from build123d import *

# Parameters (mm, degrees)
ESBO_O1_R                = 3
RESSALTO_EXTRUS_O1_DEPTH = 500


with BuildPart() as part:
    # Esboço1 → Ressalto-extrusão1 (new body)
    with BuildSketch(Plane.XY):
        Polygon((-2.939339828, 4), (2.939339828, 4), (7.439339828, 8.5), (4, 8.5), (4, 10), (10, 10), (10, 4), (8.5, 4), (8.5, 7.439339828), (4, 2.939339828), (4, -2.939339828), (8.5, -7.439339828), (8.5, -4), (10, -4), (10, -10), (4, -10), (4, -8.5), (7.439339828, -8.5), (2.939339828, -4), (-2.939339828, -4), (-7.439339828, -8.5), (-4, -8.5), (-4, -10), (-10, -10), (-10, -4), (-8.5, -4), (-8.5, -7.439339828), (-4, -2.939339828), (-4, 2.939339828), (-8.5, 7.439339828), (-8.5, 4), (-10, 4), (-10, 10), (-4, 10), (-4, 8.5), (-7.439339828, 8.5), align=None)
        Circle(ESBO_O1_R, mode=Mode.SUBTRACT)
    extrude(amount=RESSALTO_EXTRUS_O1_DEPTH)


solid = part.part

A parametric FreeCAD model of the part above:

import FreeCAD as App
import Part
import Sketcher
from FreeCAD import Vector

doc = App.newDocument("Part")
params = doc.addObject("Spreadsheet::Sheet", "Params")
for row, (alias, value) in enumerate([
    ("sketch1_diameter", "6 mm"),
    ("sketch1_width", "6 mm"),
    ("sketch1_width2", "1.5 mm"),
    ("pad1_length", "500 mm"),
], start=1):
    params.set(f"A{row}", alias)
    params.set(f"B{row}", "=" + value)
    params.setAlias(f"B{row}", alias)

body = doc.addObject("PartDesign::Body", "Body")

# Sketch on XY plane
sketch1 = body.newObject("Sketcher::SketchObject", "Sketch")
sketch1.AttachmentSupport = (doc.getObject("XY_Plane"), [""])
sketch1.MapMode = "FlatFace"
sketch1.addGeometry(Part.LineSegment(Vector(2.9, 4, 0), Vector(-2.9, 4, 0)), False)
sketch1.addGeometry(Part.LineSegment(Vector(-2.9, 4, 0), Vector(-7.4, 8.5, 0)), False)
sketch1.addGeometry(Part.LineSegment(Vector(-7.4, 8.5, 0), Vector(-4, 8.5, 0)), False)
sketch1.addGeometry(Part.LineSegment(Vector(-4, 8.5, 0), Vector(-4, 10, 0)), False)
sketch1.addGeometry(Part.LineSegment(Vector(-4, 10, 0), Vector(-10, 10, 0)), False)
sketch1.addGeometry(Part.LineSegment(Vector(-10, 10, 0), Vector(-10, 4, 0)), False)
sketch1.addGeometry(Part.LineSegment(Vector(-10, 4, 0), Vector(-8.5, 4, 0)), False)
sketch1.addGeometry(Part.LineSegment(Vector(-8.5, 4, 0), Vector(-8.5, 7.4, 0)), False)
sketch1.addGeometry(Part.LineSegment(Vector(-8.5, 7.4, 0), Vector(-4, 2.9, 0)), False)
sketch1.addGeometry(Part.LineSegment(Vector(-4, 2.9, 0), Vector(-4, -2.9, 0)), False)
sketch1.addGeometry(Part.LineSegment(Vector(-4, -2.9, 0), Vector(-8.5, -7.4, 0)), False)
sketch1.addGeometry(Part.LineSegment(Vector(-8.5, -7.4, 0), Vector(-8.5, -4, 0)), False)
sketch1.addGeometry(Part.LineSegment(Vector(-8.5, -4, 0), Vector(-10, -4, 0)), False)
sketch1.addGeometry(Part.LineSegment(Vector(-10, -4, 0), Vector(-10, -10, 0)), False)
sketch1.addGeometry(Part.LineSegment(Vector(-10, -10, 0), Vector(-4, -10, 0)), False)
sketch1.addGeometry(Part.LineSegment(Vector(-4, -10, 0), Vector(-4, -8.5, 0)), False)
sketch1.addGeometry(Part.LineSegment(Vector(-4, -8.5, 0), Vector(-7.4, -8.5, 0)), False)
sketch1.addGeometry(Part.LineSegment(Vector(-7.4, -8.5, 0), Vector(-2.9, -4, 0)), False)
sketch1.addGeometry(Part.LineSegment(Vector(-2.9, -4, 0), Vector(2.9, -4, 0)), False)
sketch1.addGeometry(Part.LineSegment(Vector(2.9, -4, 0), Vector(7.4, -8.5, 0)), False)
sketch1.addGeometry(Part.LineSegment(Vector(7.4, -8.5, 0), Vector(4, -8.5, 0)), False)
sketch1.addGeometry(Part.LineSegment(Vector(4, -8.5, 0), Vector(4, -10, 0)), False)
sketch1.addGeometry(Part.LineSegment(Vector(4, -10, 0), Vector(10, -10, 0)), False)
sketch1.addGeometry(Part.LineSegment(Vector(10, -10, 0), Vector(10, -4, 0)), False)
sketch1.addGeometry(Part.LineSegment(Vector(10, -4, 0), Vector(8.5, -4, 0)), False)
sketch1.addGeometry(Part.LineSegment(Vector(8.5, -4, 0), Vector(8.5, -7.4, 0)), False)
sketch1.addGeometry(Part.LineSegment(Vector(8.5, -7.4, 0), Vector(4, -2.9, 0)), False)
sketch1.addGeometry(Part.LineSegment(Vector(4, -2.9, 0), Vector(4, 2.9, 0)), False)
sketch1.addGeometry(Part.LineSegment(Vector(4, 2.9, 0), Vector(8.5, 7.4, 0)), False)
sketch1.addGeometry(Part.LineSegment(Vector(8.5, 7.4, 0), Vector(8.5, 4, 0)), False)
sketch1.addGeometry(Part.LineSegment(Vector(8.5, 4, 0), Vector(10, 4, 0)), False)
sketch1.addGeometry(Part.LineSegment(Vector(10, 4, 0), Vector(10, 10, 0)), False)
sketch1.addGeometry(Part.LineSegment(Vector(10, 10, 0), Vector(4, 10, 0)), False)
sketch1.addGeometry(Part.LineSegment(Vector(4, 10, 0), Vector(4, 8.5, 0)), False)
sketch1.addGeometry(Part.LineSegment(Vector(4, 8.5, 0), Vector(7.4, 8.5, 0)), False)
sketch1.addGeometry(Part.LineSegment(Vector(7.4, 8.5, 0), Vector(2.9, 4, 0)), False)
sketch1.addGeometry(Part.Circle(Vector(0, 0, 0), Vector(0, 0, 1), 3), False)
sketch1.addConstraint(Sketcher.Constraint("Coincident", 0, 2, 1, 1))
sketch1.addConstraint(Sketcher.Constraint("Coincident", 1, 2, 2, 1))
sketch1.addConstraint(Sketcher.Constraint("Coincident", 2, 2, 3, 1))
sketch1.addConstraint(Sketcher.Constraint("Coincident", 3, 2, 4, 1))
sketch1.addConstraint(Sketcher.Constraint("Coincident", 4, 2, 5, 1))
sketch1.addConstraint(Sketcher.Constraint("Coincident", 5, 2, 6, 1))
sketch1.addConstraint(Sketcher.Constraint("Coincident", 6, 2, 7, 1))
sketch1.addConstraint(Sketcher.Constraint("Coincident", 7, 2, 8, 1))
sketch1.addConstraint(Sketcher.Constraint("Coincident", 8, 2, 9, 1))
sketch1.addConstraint(Sketcher.Constraint("Coincident", 9, 2, 10, 1))
sketch1.addConstraint(Sketcher.Constraint("Coincident", 10, 2, 11, 1))
sketch1.addConstraint(Sketcher.Constraint("Coincident", 11, 2, 12, 1))
sketch1.addConstraint(Sketcher.Constraint("Coincident", 12, 2, 13, 1))
sketch1.addConstraint(Sketcher.Constraint("Coincident", 13, 2, 14, 1))
sketch1.addConstraint(Sketcher.Constraint("Coincident", 14, 2, 15, 1))
sketch1.addConstraint(Sketcher.Constraint("Coincident", 15, 2, 16, 1))
sketch1.addConstraint(Sketcher.Constraint("Coincident", 16, 2, 17, 1))
sketch1.addConstraint(Sketcher.Constraint("Coincident", 17, 2, 18, 1))
sketch1.addConstraint(Sketcher.Constraint("Coincident", 18, 2, 19, 1))
sketch1.addConstraint(Sketcher.Constraint("Coincident", 19, 2, 20, 1))
sketch1.addConstraint(Sketcher.Constraint("Coincident", 20, 2, 21, 1))
sketch1.addConstraint(Sketcher.Constraint("Coincident", 21, 2, 22, 1))
sketch1.addConstraint(Sketcher.Constraint("Coincident", 22, 2, 23, 1))
sketch1.addConstraint(Sketcher.Constraint("Coincident", 23, 2, 24, 1))
sketch1.addConstraint(Sketcher.Constraint("Coincident", 24, 2, 25, 1))
sketch1.addConstraint(Sketcher.Constraint("Coincident", 25, 2, 26, 1))
sketch1.addConstraint(Sketcher.Constraint("Coincident", 26, 2, 27, 1))
sketch1.addConstraint(Sketcher.Constraint("Coincident", 27, 2, 28, 1))
sketch1.addConstraint(Sketcher.Constraint("Coincident", 28, 2, 29, 1))
sketch1.addConstraint(Sketcher.Constraint("Coincident", 29, 2, 30, 1))
sketch1.addConstraint(Sketcher.Constraint("Coincident", 30, 2, 31, 1))
sketch1.addConstraint(Sketcher.Constraint("Coincident", 31, 2, 32, 1))
sketch1.addConstraint(Sketcher.Constraint("Coincident", 32, 2, 33, 1))
sketch1.addConstraint(Sketcher.Constraint("Coincident", 33, 2, 34, 1))
sketch1.addConstraint(Sketcher.Constraint("Coincident", 34, 2, 35, 1))
sketch1.addConstraint(Sketcher.Constraint("Coincident", 35, 2, 0, 1))
sketch1.addConstraint(Sketcher.Constraint("Horizontal", 0))
sketch1.addConstraint(Sketcher.Constraint("Horizontal", 2))
sketch1.addConstraint(Sketcher.Constraint("Vertical", 3))
sketch1.addConstraint(Sketcher.Constraint("Horizontal", 4))
sketch1.addConstraint(Sketcher.Constraint("Vertical", 5))
sketch1.addConstraint(Sketcher.Constraint("Horizontal", 6))
sketch1.addConstraint(Sketcher.Constraint("Vertical", 7))
sketch1.addConstraint(Sketcher.Constraint("Vertical", 9))
sketch1.addConstraint(Sketcher.Constraint("Vertical", 11))
sketch1.addConstraint(Sketcher.Constraint("Horizontal", 12))
sketch1.addConstraint(Sketcher.Constraint("Vertical", 13))
sketch1.addConstraint(Sketcher.Constraint("Horizontal", 14))
sketch1.addConstraint(Sketcher.Constraint("Vertical", 15))
sketch1.addConstraint(Sketcher.Constraint("Horizontal", 16))
sketch1.addConstraint(Sketcher.Constraint("Horizontal", 18))
sketch1.addConstraint(Sketcher.Constraint("Horizontal", 20))
sketch1.addConstraint(Sketcher.Constraint("Vertical", 21))
sketch1.addConstraint(Sketcher.Constraint("Horizontal", 22))
sketch1.addConstraint(Sketcher.Constraint("Vertical", 23))
sketch1.addConstraint(Sketcher.Constraint("Horizontal", 24))
sketch1.addConstraint(Sketcher.Constraint("Vertical", 25))
sketch1.addConstraint(Sketcher.Constraint("Vertical", 27))
sketch1.addConstraint(Sketcher.Constraint("Vertical", 29))
sketch1.addConstraint(Sketcher.Constraint("Horizontal", 30))
sketch1.addConstraint(Sketcher.Constraint("Vertical", 31))
sketch1.addConstraint(Sketcher.Constraint("Horizontal", 32))
sketch1.addConstraint(Sketcher.Constraint("Vertical", 33))
sketch1.addConstraint(Sketcher.Constraint("Horizontal", 34))
sketch1.addConstraint(Sketcher.Constraint("Coincident", 36, 3, -1, 1))
sketch1.addConstraint(Sketcher.Constraint("Symmetric", 0, 2, 18, 2, -1, 1))
sketch1.addConstraint(Sketcher.Constraint("Symmetric", 1, 2, 19, 2, -1, 1))
sketch1.addConstraint(Sketcher.Constraint("Symmetric", 3, 2, 21, 2, -1, 1))
sketch1.addConstraint(Sketcher.Constraint("Symmetric", 5, 2, 23, 2, -1, 1))
sketch1.addConstraint(Sketcher.Constraint("Symmetric", 7, 2, 25, 2, -1, 1))
sketch1.addConstraint(Sketcher.Constraint("Symmetric", 8, 2, 26, 2, -1, 1))
sketch1.addConstraint(Sketcher.Constraint("Symmetric", 10, 2, 28, 2, -1, 1))
sketch1.addConstraint(Sketcher.Constraint("Symmetric", 12, 2, 30, 2, -1, 1))
sketch1.addConstraint(Sketcher.Constraint("Symmetric", 14, 2, 32, 2, -1, 1))
sketch1.addConstraint(Sketcher.Constraint("Symmetric", 16, 2, 34, 2, -1, 1))
sketch1.addConstraint(Sketcher.Constraint("Symmetric", 16, 2, 19, 2, -2))
sketch1.addConstraint(Sketcher.Constraint("Symmetric", 14, 2, 21, 2, -2))
sketch1.addConstraint(Sketcher.Constraint("Symmetric", 12, 2, 23, 2, -2))
sketch1.addConstraint(Sketcher.Constraint("Symmetric", 10, 2, 25, 2, -2))
sketch1.addConstraint(Sketcher.Constraint("Parallel", 1, 8))
sketch1.addConstraint(Sketcher.Constraint("Perpendicular", 8, 10))
sketch1.addConstraint(Sketcher.Constraint("Parallel", 10, 17))
sketch1.addConstraint(Sketcher.Constraint("Perpendicular", 26, 28))
sketch1.addConstraint(Sketcher.Constraint("Parallel", 28, 35))
sketch1.addConstraint(Sketcher.Constraint("Horizontal", 0, 2, 5, 2))
sketch1.addConstraint(Sketcher.Constraint("Horizontal", 9, 2, 26, 2))
sketch1.addConstraint(Sketcher.Constraint("Vertical", 3, 2, 8, 2))
sketch1.addConstraint(Sketcher.Constraint("Equal", 30, 3))
sketch1.addConstraint(Sketcher.Constraint("Equal", 32, 5))
sketch1.addConstraint(Sketcher.Constraint("Equal", 34, 7))
sketch1.addConstraint(Sketcher.Constraint("Equal", 18, 9))
sketch1.addConstraint(Sketcher.Constraint("Diameter", 36, 6.0))
sketch1.addConstraint(Sketcher.Constraint("DistanceX", 4, 2, 4, 1, 6.0))
sketch1.addConstraint(Sketcher.Constraint("DistanceX", 6, 1, 6, 2, 1.5))
sketch1.addConstraint(Sketcher.Constraint("DistanceY", -1, 1, 0, 2, 4.0))
sketch1.addConstraint(Sketcher.Constraint("DistanceX", 0, 2, 0, 1, 5.87868))
sketch1.setExpression("Constraints[91]", "Params.sketch1_diameter")
sketch1.setExpression("Constraints[92]", "Params.sketch1_width")
sketch1.setExpression("Constraints[93]", "Params.sketch1_width2")
pad1 = body.newObject("PartDesign::Pad", "Pad")
pad1.Profile = sketch1
pad1.setExpression("Length", "Params.pad1_length")

doc.recompute()
